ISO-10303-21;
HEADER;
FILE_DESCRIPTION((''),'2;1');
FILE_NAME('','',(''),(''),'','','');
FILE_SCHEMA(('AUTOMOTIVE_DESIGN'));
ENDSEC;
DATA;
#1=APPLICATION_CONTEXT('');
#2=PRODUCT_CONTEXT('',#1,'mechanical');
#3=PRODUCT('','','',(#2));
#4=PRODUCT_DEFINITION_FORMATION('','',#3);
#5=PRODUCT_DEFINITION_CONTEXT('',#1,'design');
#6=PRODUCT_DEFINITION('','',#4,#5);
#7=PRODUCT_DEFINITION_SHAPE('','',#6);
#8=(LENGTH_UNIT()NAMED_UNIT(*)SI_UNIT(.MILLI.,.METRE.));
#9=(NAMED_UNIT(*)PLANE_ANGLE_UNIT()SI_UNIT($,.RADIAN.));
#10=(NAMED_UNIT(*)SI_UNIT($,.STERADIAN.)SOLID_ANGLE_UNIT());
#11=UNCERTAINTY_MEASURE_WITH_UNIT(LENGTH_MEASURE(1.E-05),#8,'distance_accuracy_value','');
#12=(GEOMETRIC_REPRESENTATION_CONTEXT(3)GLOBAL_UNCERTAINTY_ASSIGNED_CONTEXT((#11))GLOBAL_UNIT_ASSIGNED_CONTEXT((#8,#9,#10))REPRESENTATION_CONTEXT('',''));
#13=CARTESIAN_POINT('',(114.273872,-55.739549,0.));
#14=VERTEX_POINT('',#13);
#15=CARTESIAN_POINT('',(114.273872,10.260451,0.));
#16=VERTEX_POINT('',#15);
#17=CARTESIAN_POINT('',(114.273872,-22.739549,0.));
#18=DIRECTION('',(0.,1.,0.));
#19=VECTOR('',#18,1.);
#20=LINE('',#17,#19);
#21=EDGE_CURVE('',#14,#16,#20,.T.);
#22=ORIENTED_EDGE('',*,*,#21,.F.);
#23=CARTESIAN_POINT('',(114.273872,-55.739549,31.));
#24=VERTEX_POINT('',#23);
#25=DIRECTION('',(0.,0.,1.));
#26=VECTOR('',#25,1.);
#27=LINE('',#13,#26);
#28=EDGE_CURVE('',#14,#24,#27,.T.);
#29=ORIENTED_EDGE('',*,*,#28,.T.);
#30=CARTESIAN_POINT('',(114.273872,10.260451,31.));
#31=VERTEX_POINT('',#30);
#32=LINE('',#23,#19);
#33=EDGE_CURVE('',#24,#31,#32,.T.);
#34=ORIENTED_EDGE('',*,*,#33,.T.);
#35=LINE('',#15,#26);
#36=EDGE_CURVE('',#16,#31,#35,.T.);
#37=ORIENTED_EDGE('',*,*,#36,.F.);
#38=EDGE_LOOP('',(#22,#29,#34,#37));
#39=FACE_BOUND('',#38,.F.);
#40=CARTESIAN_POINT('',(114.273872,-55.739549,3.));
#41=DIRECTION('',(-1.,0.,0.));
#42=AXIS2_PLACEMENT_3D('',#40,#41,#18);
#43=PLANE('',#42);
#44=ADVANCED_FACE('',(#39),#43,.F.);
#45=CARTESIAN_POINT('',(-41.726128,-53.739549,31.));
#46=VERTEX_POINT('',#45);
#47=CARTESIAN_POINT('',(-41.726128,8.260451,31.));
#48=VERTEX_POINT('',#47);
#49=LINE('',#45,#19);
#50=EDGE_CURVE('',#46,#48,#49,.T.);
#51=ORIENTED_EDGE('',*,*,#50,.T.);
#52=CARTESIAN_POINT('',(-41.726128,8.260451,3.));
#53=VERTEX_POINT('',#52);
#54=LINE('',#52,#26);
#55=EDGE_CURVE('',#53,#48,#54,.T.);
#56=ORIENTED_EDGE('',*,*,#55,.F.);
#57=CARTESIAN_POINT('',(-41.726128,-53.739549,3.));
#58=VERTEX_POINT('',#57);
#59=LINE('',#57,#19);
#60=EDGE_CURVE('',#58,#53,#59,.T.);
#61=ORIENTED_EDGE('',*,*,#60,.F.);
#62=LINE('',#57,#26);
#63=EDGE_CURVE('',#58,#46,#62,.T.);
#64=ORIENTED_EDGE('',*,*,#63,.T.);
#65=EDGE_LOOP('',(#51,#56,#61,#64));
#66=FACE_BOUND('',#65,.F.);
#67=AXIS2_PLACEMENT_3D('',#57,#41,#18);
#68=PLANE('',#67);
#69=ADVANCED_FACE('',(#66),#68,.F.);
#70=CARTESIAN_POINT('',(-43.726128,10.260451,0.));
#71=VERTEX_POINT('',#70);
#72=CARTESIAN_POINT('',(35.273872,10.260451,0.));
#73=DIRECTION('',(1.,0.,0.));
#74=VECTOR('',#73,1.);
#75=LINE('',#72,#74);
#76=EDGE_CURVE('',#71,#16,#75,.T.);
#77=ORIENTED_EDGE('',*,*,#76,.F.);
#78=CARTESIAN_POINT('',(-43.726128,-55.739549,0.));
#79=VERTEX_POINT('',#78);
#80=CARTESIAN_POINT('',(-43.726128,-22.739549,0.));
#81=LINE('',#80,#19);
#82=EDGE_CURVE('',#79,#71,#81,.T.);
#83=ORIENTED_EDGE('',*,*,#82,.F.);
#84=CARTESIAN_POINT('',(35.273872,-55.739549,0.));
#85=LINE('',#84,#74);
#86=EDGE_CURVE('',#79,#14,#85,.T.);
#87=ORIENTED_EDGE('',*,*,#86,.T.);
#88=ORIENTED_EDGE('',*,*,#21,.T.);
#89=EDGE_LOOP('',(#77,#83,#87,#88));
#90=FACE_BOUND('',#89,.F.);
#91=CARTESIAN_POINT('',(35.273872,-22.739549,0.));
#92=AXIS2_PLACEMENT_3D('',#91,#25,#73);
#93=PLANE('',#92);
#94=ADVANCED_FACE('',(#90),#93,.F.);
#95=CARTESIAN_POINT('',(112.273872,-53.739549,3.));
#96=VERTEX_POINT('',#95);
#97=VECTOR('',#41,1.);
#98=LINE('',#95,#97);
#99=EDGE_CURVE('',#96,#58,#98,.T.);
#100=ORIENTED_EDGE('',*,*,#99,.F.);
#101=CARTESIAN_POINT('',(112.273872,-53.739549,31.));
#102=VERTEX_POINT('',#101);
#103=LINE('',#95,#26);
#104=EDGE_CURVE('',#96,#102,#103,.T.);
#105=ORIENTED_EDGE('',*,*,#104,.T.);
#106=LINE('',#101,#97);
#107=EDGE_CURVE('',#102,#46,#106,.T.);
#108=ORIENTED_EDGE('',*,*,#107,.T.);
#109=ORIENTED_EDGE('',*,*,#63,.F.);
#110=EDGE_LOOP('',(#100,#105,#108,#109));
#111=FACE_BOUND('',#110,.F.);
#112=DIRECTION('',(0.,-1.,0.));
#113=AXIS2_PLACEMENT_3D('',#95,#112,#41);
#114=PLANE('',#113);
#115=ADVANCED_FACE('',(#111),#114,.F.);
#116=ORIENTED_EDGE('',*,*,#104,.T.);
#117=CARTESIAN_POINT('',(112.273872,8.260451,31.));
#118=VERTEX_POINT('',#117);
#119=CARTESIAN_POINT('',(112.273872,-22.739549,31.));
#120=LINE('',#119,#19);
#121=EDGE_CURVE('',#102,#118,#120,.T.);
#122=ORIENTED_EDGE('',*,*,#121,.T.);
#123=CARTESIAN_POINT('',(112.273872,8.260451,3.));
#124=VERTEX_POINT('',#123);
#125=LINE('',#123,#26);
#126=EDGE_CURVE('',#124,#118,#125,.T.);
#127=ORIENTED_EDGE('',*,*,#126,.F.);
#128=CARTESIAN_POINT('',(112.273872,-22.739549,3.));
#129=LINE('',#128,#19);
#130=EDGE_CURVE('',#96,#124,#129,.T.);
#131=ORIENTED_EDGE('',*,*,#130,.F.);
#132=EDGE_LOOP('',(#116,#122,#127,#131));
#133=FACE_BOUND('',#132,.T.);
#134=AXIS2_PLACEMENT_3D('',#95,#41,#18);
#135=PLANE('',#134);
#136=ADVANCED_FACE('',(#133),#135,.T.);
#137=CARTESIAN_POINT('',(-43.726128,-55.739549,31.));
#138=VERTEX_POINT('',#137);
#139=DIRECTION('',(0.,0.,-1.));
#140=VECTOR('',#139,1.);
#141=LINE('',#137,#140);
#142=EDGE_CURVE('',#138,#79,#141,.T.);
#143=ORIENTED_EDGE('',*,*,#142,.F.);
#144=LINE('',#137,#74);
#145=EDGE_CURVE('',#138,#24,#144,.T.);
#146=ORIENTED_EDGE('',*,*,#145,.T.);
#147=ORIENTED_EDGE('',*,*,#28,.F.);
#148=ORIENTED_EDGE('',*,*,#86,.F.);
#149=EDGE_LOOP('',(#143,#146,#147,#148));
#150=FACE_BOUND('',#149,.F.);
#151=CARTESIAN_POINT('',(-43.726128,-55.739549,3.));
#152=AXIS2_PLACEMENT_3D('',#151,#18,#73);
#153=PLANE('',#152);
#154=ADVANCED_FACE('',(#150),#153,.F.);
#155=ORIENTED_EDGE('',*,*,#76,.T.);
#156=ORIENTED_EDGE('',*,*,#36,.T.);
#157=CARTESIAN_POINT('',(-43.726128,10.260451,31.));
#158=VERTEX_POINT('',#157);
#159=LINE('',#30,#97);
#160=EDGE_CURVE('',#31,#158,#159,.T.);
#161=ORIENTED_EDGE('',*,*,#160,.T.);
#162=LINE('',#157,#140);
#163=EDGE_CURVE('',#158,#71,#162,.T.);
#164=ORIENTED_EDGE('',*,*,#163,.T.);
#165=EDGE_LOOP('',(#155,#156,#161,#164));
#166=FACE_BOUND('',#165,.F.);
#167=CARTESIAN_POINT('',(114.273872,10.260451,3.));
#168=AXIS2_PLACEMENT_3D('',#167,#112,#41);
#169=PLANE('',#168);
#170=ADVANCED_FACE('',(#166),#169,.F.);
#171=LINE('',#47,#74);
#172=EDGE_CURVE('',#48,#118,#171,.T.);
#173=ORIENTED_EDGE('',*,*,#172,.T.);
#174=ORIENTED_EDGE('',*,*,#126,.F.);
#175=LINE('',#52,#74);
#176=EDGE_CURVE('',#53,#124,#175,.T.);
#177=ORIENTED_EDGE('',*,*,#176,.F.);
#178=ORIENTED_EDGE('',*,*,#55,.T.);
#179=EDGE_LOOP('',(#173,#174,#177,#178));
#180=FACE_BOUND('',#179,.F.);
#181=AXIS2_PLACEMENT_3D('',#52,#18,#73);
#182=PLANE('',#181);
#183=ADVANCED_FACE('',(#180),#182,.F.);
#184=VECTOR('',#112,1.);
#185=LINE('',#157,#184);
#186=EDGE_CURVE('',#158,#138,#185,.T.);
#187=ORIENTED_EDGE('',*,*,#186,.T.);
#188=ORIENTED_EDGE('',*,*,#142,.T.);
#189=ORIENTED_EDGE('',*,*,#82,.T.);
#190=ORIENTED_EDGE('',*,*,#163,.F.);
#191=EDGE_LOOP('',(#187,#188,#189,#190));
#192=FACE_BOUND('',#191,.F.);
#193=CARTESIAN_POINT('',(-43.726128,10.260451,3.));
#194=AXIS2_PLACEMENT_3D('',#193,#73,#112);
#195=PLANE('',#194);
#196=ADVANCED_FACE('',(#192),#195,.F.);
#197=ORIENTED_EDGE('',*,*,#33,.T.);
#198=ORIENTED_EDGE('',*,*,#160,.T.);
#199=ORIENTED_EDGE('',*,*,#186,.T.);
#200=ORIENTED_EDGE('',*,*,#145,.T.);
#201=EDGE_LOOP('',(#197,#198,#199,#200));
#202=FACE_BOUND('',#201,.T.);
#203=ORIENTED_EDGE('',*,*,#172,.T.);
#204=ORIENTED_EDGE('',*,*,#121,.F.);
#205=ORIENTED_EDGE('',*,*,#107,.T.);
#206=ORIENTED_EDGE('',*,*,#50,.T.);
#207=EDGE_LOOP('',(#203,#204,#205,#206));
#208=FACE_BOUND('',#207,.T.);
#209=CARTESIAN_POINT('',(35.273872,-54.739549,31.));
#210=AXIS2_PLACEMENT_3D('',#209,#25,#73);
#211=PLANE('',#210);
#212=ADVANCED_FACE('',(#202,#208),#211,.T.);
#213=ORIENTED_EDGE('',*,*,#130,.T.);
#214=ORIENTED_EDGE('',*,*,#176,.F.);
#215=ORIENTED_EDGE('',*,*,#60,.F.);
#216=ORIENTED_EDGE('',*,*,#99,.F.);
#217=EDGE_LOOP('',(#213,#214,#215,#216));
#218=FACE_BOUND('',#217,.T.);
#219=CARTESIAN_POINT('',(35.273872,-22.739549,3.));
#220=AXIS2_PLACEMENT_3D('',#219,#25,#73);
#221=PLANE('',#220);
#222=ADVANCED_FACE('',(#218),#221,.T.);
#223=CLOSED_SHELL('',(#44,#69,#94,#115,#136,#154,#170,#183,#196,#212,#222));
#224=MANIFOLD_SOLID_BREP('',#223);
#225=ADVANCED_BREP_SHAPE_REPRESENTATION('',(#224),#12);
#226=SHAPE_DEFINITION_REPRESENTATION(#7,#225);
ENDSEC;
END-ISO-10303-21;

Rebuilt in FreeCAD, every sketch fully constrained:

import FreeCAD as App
import Part
import Sketcher
Q = App.Units.Quantity


def add_polygon(sketch, points):
    """Adds a closed chain of lines whose ends are joined by coincident constraints."""
    first, n = sketch.GeometryCount, len(points)
    for a, b in zip(points, points[1:] + points[:1]):
        sketch.addGeometry(Part.LineSegment(App.Vector(*a, 0), App.Vector(*b, 0)), False)
    for i in range(n):
        sketch.addConstraint(Sketcher.Constraint("Coincident", first + i, 2, first + (i + 1) % n, 1))

doc = App.newDocument("Part")
body = doc.addObject("PartDesign::Body", "Body")

# Sketch on XY plane
sketch1 = body.newObject("Sketcher::SketchObject", "Sketch")
sketch1.AttachmentSupport = (doc.getObject("XY_Plane"), [""])
sketch1.MapMode = "FlatFace"
add_polygon(sketch1, [(-44, 10), (-44, -56), (114, -56), (114, 10)])  # lines 0-3
sketch1.addConstraint([
    Sketcher.Constraint("Vertical", 0),
    Sketcher.Constraint("Horizontal", 1),
    Sketcher.Constraint("Vertical", 2),
    Sketcher.Constraint("Horizontal", 3),
    Sketcher.Constraint("DistanceX", 1, 1, 1, 2, Q("158 mm")),
    Sketcher.Constraint("DistanceY", 0, 2, 0, 1, Q("66 mm")),
    Sketcher.Constraint("DistanceX", 0, 2, -1, 1, Q("43.726128 mm")),
    Sketcher.Constraint("DistanceY", 0, 2, -1, 1, Q("55.739549 mm")),
])
pad1 = body.newObject("PartDesign::Pad", "Pad")
pad1.Profile = sketch1
pad1.Length = 3

# Sketch on XY plane
sketch2 = body.newObject("Sketcher::SketchObject", "Sketch001")
sketch2.AttachmentSupport = (doc.getObject("XY_Plane"), [""])
sketch2.MapMode = "FlatFace"
sketch2.AttachmentOffset = App.Placement(App.Vector(0, 0, 3), App.Rotation())
add_polygon(sketch2, [(-44, -56), (114, -56), (114, 10), (-44, 10)])  # lines 0-3
add_polygon(sketch2, [(112, 8), (112, -54), (-42, -54), (-42, 8)])  # lines 4-7
sketch2.addConstraint([
    Sketcher.Constraint("Horizontal", 0),
    Sketcher.Constraint("Vertical", 1),
    Sketcher.Constraint("Horizontal", 2),
    Sketcher.Constraint("Vertical", 3),
    Sketcher.Constraint("Vertical", 4),
    Sketcher.Constraint("Horizontal", 5),
    Sketcher.Constraint("Vertical", 6),
    Sketcher.Constraint("Horizontal", 7),
    Sketcher.Constraint("DistanceX", 0, 1, 0, 2, Q("158 mm")),
    Sketcher.Constraint("DistanceX", 5, 2, 5, 1, Q("154 mm")),
    Sketcher.Constraint("DistanceY", 1, 1, 1, 2, Q("66 mm")),
    Sketcher.Constraint("DistanceY", 4, 2, 4, 1, Q("62 mm")),
    Sketcher.Constraint("DistanceX", 4, 2, 0, 2, Q("2 mm")),
    Sketcher.Constraint("DistanceY", 0, 2, 4, 2, Q("2 mm")),
    Sketcher.Constraint("DistanceX", -1, 1, 0, 2, Q("114.273872 mm")),
    Sketcher.Constraint("DistanceY", 0, 2, -1, 1, Q("55.739549 mm")),
])
pad2 = body.newObject("PartDesign::Pad", "Pad001")
pad2.Profile = sketch2
pad2.Length = 28

doc.recompute()
